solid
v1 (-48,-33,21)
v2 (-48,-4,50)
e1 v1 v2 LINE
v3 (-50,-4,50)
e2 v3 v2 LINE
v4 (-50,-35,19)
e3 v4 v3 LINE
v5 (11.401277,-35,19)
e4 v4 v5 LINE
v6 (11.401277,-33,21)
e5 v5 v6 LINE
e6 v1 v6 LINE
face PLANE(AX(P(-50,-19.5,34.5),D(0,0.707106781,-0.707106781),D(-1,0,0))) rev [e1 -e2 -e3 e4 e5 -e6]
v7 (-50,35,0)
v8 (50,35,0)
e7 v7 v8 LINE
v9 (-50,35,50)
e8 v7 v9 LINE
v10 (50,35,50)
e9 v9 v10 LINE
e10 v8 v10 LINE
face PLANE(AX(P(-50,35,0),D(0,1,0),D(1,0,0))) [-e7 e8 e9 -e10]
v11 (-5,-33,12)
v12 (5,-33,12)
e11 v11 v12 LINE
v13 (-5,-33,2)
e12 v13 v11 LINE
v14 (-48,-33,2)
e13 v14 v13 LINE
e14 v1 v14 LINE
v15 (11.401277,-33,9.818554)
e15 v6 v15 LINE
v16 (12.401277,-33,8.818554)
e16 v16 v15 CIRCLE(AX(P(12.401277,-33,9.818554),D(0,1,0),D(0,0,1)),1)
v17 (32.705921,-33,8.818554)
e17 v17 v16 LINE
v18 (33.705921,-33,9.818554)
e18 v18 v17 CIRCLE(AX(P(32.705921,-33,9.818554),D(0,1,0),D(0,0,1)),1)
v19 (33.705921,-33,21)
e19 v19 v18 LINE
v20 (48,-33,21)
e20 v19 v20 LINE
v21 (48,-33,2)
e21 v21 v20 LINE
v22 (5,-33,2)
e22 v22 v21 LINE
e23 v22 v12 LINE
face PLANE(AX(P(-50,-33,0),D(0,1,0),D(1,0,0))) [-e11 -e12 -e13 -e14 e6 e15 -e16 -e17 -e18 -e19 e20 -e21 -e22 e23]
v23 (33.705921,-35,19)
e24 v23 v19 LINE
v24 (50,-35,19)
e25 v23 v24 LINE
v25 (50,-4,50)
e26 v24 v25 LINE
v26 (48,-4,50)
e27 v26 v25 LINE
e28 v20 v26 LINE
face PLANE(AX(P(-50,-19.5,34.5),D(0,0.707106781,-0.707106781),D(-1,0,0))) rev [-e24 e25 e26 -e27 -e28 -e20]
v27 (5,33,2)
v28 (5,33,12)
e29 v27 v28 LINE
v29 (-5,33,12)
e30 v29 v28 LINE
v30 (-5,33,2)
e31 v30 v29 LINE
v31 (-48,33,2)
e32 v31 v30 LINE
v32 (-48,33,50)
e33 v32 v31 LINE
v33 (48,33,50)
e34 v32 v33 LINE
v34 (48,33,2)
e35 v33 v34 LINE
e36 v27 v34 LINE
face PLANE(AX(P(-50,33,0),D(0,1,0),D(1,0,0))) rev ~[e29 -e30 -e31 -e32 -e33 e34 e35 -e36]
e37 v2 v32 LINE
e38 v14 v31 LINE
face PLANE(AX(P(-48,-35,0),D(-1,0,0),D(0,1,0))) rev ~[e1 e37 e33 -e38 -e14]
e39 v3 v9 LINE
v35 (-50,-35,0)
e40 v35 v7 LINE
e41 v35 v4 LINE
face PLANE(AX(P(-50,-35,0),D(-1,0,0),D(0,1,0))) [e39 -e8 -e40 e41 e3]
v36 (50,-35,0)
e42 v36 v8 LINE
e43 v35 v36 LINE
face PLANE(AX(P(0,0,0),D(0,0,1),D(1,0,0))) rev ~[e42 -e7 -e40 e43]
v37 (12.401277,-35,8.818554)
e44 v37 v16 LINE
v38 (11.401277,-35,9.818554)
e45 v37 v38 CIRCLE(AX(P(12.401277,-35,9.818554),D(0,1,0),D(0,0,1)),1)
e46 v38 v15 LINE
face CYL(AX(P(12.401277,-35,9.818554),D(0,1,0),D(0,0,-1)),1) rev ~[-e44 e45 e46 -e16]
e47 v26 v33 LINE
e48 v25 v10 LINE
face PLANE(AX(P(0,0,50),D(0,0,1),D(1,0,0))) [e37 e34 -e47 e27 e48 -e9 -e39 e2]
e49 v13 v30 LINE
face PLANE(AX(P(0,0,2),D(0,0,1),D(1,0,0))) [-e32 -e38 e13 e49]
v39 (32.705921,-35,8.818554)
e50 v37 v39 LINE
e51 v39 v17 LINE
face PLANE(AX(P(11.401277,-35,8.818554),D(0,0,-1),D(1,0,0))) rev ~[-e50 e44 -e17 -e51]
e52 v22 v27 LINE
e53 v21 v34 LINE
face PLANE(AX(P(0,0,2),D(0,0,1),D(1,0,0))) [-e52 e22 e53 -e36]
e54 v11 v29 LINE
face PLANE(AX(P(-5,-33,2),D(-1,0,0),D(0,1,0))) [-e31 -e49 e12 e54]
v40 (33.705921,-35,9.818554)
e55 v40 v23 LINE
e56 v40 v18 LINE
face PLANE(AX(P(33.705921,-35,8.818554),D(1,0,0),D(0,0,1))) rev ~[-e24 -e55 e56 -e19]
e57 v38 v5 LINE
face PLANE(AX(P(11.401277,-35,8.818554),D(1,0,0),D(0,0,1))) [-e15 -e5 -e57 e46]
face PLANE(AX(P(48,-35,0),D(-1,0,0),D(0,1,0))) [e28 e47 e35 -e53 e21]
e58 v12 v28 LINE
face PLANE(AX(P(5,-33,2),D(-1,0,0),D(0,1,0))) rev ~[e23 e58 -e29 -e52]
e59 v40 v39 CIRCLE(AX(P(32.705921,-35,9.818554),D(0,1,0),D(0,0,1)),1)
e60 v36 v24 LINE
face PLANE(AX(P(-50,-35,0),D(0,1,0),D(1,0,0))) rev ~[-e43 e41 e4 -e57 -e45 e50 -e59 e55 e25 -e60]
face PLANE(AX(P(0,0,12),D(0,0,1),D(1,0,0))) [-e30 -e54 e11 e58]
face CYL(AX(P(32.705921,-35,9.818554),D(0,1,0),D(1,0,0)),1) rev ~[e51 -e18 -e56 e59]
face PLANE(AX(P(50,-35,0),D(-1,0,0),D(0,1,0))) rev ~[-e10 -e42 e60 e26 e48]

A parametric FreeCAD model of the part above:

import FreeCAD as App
import Part
import Sketcher
from FreeCAD import Vector
Q = App.Units.Quantity


def edges_at(feature, points):
    """Names of the edges that pass closest to the given points."""
    edges = feature.Shape.Edges
    near = lambda p: min(range(len(edges)), key=lambda i: edges[i].distToShape(Part.Vertex(*p))[0])
    return sorted({f"Edge{near(p) + 1}" for p in points})


def faces_at(feature, points):
    """Names of the faces that lie closest to the given points."""
    faces = feature.Shape.Faces
    near = lambda p: min(range(len(faces)), key=lambda i: faces[i].distToShape(Part.Vertex(*p))[0])
    return sorted({f"Face{near(p) + 1}" for p in points})


def add_polygon(sketch, points):
    """Adds a closed chain of lines whose ends are joined by coincident constraints."""
    first, n = sketch.GeometryCount, len(points)
    for a, b in zip(points, points[1:] + points[:1]):
        sketch.addGeometry(Part.LineSegment(App.Vector(*a, 0), App.Vector(*b, 0)), False)
    for i in range(n):
        sketch.addConstraint(Sketcher.Constraint("Coincident", first + i, 2, first + (i + 1) % n, 1))

doc = App.newDocument("Part")
body = doc.addObject("PartDesign::Body", "Body")

# Sketch on XY plane
sketch1 = body.newObject("Sketcher::SketchObject", "Sketch")
sketch1.AttachmentSupport = (doc.getObject("XY_Plane"), [""])
sketch1.MapMode = "FlatFace"
add_polygon(sketch1, [(-50, 35), (-50, -35), (50, -35), (50, 35)])  # lines 0-3
sketch1.addConstraint([
    Sketcher.Constraint("Vertical", 0),
    Sketcher.Constraint("Horizontal", 1),
    Sketcher.Constraint("Vertical", 2),
    Sketcher.Constraint("Horizontal", 3),
    Sketcher.Constraint("Symmetric", 0, 2, 2, 2, -1, 1),
    Sketcher.Constraint("DistanceX", 1, 1, 1, 2, Q("100 mm")),
    Sketcher.Constraint("DistanceY", 0, 2, 0, 1, Q("70 mm")),
])
pad1 = body.newObject("PartDesign::Pad", "Pad")
pad1.Profile = sketch1
pad1.Length = 50
doc.recompute()

chamfer = body.newObject("PartDesign::Chamfer", "Chamfer")
chamfer.Base = (pad1, edges_at(pad1, [(0, -35, 50)]))
chamfer.Size = 31
doc.recompute()

thickness = body.newObject("PartDesign::Thickness", "Thickness")
thickness.Base = (chamfer, faces_at(chamfer, [(0, 15.5, 50), (0, -19.5, 34.5)]))
thickness.Value = 2
thickness.Reversed = True
thickness.Join = "Arc"

# Sketch on XY plane
sketch2 = body.newObject("Sketcher::SketchObject", "Sketch001")
sketch2.AttachmentSupport = (doc.getObject("XY_Plane"), [""])
sketch2.MapMode = "FlatFace"
sketch2.AttachmentOffset = App.Placement(Vector(0, 0, 2), App.Rotation())
add_polygon(sketch2, [(-5, 33), (-5, -33), (5, -33), (5, 33)])  # lines 0-3
sketch2.addConstraint([
    Sketcher.Constraint("Vertical", 0),
    Sketcher.Constraint("Horizontal", 1),
    Sketcher.Constraint("Vertical", 2),
    Sketcher.Constraint("Horizontal", 3),
    Sketcher.Constraint("Symmetric", 0, 2, 2, 2, -1, 1),
    Sketcher.Constraint("DistanceX", 1, 1, 1, 2, Q("10 mm")),
    Sketcher.Constraint("DistanceY", 0, 2, 0, 1, Q("66 mm")),
])
pad2 = body.newObject("PartDesign::Pad", "Pad001")
pad2.Profile = sketch2
pad2.Length = 10

# Sketch on XZ plane
sketch3 = body.newObject("Sketcher::SketchObject", "Sketch002")
sketch3.AttachmentSupport = (doc.getObject("XZ_Plane"), [""])
sketch3.MapMode = "FlatFace"
sketch3.AttachmentOffset = App.Placement(Vector(0, 0, 35), App.Rotation())
add_polygon(sketch3, [(11, 21), (11, 9), (34, 9), (34, 21)])  # lines 0-3
sketch3.addConstraint([
    Sketcher.Constraint("Vertical", 0),
    Sketcher.Constraint("Horizontal", 1),
    Sketcher.Constraint("Vertical", 2),
    Sketcher.Constraint("Horizontal", 3),
    Sketcher.Constraint("DistanceY", -1, 1, 2, 2, Q("21 mm")),
    Sketcher.Constraint("DistanceX", 1, 1, 1, 2, Q("22.304644 mm")),
    Sketcher.Constraint("DistanceY", 0, 2, 0, 1, Q("12.181445 mm")),
    Sketcher.Constraint("DistanceX", -1, 1, 1, 2, Q("33.705921 mm")),
])
pocket1 = body.newObject("PartDesign::Pocket", "Pocket")
pocket1.Profile = sketch3
pocket1.Length = 11
doc.recompute()

fillet = body.newObject("PartDesign::Fillet", "Fillet")
fillet.Base = (pocket1, edges_at(pocket1, [(33.706, -34, 8.819), (11.401, -34, 8.819)]))
fillet.Radius = 1

doc.recompute()
